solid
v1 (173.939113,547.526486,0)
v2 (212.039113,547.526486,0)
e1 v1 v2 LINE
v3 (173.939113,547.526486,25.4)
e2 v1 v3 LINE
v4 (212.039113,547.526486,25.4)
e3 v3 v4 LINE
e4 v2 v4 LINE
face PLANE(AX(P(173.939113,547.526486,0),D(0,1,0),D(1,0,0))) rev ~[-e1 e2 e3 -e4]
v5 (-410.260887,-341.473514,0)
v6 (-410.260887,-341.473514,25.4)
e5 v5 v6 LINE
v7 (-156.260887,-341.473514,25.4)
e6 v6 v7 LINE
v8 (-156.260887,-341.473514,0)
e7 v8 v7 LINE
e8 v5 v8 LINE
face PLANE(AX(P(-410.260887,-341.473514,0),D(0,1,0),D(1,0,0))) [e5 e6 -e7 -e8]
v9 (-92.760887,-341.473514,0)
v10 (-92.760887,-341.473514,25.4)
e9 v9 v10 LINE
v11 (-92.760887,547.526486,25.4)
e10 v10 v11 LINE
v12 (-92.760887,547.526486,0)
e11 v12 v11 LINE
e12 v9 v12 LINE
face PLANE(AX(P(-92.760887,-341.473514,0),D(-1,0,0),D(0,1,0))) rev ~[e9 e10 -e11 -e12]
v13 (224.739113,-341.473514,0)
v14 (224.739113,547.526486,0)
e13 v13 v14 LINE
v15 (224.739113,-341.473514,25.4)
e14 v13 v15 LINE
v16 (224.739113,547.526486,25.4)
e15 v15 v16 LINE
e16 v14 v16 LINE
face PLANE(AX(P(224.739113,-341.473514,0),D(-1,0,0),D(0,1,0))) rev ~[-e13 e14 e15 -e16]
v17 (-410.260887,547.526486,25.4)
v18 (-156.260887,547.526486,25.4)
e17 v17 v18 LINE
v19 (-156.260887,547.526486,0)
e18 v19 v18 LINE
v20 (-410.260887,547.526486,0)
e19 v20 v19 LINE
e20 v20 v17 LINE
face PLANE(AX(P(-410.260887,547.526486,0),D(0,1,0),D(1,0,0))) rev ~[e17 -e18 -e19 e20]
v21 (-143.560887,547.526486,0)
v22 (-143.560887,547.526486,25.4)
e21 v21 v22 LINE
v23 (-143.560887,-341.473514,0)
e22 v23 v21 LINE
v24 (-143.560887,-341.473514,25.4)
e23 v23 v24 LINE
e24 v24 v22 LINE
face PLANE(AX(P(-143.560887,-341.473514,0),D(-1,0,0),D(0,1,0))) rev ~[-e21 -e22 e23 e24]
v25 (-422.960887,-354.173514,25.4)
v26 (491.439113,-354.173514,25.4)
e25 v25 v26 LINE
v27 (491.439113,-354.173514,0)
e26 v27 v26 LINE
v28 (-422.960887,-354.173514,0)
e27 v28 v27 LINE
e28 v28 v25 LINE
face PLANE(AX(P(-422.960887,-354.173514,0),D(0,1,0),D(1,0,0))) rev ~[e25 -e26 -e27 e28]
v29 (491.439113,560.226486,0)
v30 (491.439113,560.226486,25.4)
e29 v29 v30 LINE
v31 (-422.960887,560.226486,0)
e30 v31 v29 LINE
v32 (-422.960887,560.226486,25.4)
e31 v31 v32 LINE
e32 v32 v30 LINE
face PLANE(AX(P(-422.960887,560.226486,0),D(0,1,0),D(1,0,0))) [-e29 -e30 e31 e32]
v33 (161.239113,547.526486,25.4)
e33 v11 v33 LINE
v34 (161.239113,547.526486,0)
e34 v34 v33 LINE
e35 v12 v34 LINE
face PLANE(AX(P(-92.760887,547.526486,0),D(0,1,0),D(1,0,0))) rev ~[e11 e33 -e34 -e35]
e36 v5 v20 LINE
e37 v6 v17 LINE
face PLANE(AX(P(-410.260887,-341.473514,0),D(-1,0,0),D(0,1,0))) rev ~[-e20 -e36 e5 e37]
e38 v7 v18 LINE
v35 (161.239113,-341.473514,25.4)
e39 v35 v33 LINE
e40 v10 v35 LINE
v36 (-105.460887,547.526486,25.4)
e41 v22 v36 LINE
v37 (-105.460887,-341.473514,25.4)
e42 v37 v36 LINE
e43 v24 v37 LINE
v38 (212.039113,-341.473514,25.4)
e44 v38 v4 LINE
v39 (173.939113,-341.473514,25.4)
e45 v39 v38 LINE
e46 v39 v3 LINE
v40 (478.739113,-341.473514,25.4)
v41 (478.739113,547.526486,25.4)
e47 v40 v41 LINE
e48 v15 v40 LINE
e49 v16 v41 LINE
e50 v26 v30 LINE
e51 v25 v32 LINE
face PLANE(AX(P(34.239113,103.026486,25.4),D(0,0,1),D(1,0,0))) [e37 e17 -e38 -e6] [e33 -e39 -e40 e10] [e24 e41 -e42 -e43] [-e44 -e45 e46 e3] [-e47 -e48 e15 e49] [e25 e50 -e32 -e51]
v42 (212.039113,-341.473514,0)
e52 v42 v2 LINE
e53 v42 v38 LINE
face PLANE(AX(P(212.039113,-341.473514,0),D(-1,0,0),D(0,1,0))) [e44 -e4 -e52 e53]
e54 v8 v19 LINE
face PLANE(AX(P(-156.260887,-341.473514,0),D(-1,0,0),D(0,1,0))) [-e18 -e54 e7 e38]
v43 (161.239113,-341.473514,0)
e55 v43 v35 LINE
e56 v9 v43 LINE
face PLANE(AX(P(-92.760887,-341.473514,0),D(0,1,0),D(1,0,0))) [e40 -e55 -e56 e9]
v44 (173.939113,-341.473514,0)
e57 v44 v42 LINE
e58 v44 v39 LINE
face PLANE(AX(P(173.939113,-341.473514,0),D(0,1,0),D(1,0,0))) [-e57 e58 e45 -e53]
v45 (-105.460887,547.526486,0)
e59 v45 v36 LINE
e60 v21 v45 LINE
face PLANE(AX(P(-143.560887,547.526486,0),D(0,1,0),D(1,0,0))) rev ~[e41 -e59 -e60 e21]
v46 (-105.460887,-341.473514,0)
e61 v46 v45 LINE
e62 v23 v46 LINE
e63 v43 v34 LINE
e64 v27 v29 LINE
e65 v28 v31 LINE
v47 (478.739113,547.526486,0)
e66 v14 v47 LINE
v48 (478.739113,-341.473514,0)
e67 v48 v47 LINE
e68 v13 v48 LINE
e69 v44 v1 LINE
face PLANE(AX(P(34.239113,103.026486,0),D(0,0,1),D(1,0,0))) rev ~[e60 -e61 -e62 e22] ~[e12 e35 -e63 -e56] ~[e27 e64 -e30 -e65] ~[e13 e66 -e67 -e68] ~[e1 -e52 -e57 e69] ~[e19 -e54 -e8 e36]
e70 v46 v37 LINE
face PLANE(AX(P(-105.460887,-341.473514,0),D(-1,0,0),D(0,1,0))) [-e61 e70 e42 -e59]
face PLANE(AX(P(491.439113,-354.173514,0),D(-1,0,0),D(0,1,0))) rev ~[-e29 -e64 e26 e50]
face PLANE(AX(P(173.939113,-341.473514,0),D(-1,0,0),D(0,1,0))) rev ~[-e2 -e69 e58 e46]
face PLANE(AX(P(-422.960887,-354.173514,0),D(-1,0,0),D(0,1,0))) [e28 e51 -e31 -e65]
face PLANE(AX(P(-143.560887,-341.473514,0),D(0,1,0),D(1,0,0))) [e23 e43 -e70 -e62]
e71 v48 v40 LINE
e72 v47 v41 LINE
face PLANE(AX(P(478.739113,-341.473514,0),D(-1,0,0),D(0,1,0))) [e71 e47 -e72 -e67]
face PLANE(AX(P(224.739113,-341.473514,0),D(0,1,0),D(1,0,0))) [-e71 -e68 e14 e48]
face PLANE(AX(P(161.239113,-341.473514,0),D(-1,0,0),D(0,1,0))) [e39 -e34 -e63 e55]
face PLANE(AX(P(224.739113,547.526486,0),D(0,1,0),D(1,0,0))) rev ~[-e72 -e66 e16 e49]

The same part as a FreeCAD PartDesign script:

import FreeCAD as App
import Part
import Sketcher

V = App.Vector
Q = App.Units.Quantity

doc = App.newDocument("Part")
body = doc.addObject("PartDesign::Body", "Body")

# Sketch on XY plane
sketch1 = body.newObject("Sketcher::SketchObject", "Sketch")
sketch1.AttachmentSupport = (doc.getObject("XY_Plane"), [""])
sketch1.MapMode = "FlatFace"
sketch1.addGeometry([
    Part.LineSegment(V(-422.960887, 560.226486, 0), V(-422.960887, -354.173514, 0)),  # 0
    Part.LineSegment(V(-422.960887, -354.173514, 0), V(491.439113, -354.173514, 0)),  # 1
    Part.LineSegment(V(491.439113, -354.173514, 0), V(491.439113, 560.226486, 0)),  # 2
    Part.LineSegment(V(491.439113, 560.226486, 0), V(-422.960887, 560.226486, 0)),  # 3
    Part.LineSegment(V(-156.260887, -341.473514, 0), V(-410.260887, -341.473514, 0)),  # 4
    Part.LineSegment(V(-410.260887, -341.473514, 0), V(-410.260887, 547.526486, 0)),  # 5
    Part.LineSegment(V(-410.260887, 547.526486, 0), V(-156.260887, 547.526486, 0)),  # 6
    Part.LineSegment(V(-156.260887, 547.526486, 0), V(-156.260887, -341.473514, 0)),  # 7
    Part.LineSegment(V(-105.460887, -341.473514, 0), V(-143.560887, -341.473514, 0)),  # 8
    Part.LineSegment(V(-143.560887, -341.473514, 0), V(-143.560887, 547.526486, 0)),  # 9
    Part.LineSegment(V(-143.560887, 547.526486, 0), V(-105.460887, 547.526486, 0)),  # 10
    Part.LineSegment(V(-105.460887, 547.526486, 0), V(-105.460887, -341.473514, 0)),  # 11
    Part.LineSegment(V(161.239113, -341.473514, 0), V(-92.760887, -341.473514, 0)),  # 12
    Part.LineSegment(V(-92.760887, -341.473514, 0), V(-92.760887, 547.526486, 0)),  # 13
    Part.LineSegment(V(-92.760887, 547.526486, 0), V(161.239113, 547.526486, 0)),  # 14
    Part.LineSegment(V(161.239113, 547.526486, 0), V(161.239113, -341.473514, 0)),  # 15
    Part.LineSegment(V(212.039113, -341.473514, 0), V(173.939113, -341.473514, 0)),  # 16
    Part.LineSegment(V(173.939113, -341.473514, 0), V(173.939113, 547.526486, 0)),  # 17
    Part.LineSegment(V(173.939113, 547.526486, 0), V(212.039113, 547.526486, 0)),  # 18
    Part.LineSegment(V(212.039113, 547.526486, 0), V(212.039113, -341.473514, 0)),  # 19
    Part.LineSegment(V(478.739113, -341.473514, 0), V(224.739113, -341.473514, 0)),  # 20
    Part.LineSegment(V(224.739113, -341.473514, 0), V(224.739113, 547.526486, 0)),  # 21
    Part.LineSegment(V(224.739113, 547.526486, 0), V(478.739113, 547.526486, 0)),  # 22
    Part.LineSegment(V(478.739113, 547.526486, 0), V(478.739113, -341.473514, 0)),  # 23
], False)
sketch1.addConstraint([
    Sketcher.Constraint("Coincident", 0, 2, 1, 1),
    Sketcher.Constraint("Coincident", 1, 2, 2, 1),
    Sketcher.Constraint("Coincident", 2, 2, 3, 1),
    Sketcher.Constraint("Coincident", 3, 2, 0, 1),
    Sketcher.Constraint("Coincident", 4, 2, 5, 1),
    Sketcher.Constraint("Coincident", 5, 2, 6, 1),
    Sketcher.Constraint("Coincident", 6, 2, 7, 1),
    Sketcher.Constraint("Coincident", 7, 2, 4, 1),
    Sketcher.Constraint("Coincident", 8, 2, 9, 1),
    Sketcher.Constraint("Coincident", 9, 2, 10, 1),
    Sketcher.Constraint("Coincident", 10, 2, 11, 1),
    Sketcher.Constraint("Coincident", 11, 2, 8, 1),
    Sketcher.Constraint("Coincident", 12, 2, 13, 1),
    Sketcher.Constraint("Coincident", 13, 2, 14, 1),
    Sketcher.Constraint("Coincident", 14, 2, 15, 1),
    Sketcher.Constraint("Coincident", 15, 2, 12, 1),
    Sketcher.Constraint("Coincident", 16, 2, 17, 1),
    Sketcher.Constraint("Coincident", 17, 2, 18, 1),
    Sketcher.Constraint("Coincident", 18, 2, 19, 1),
    Sketcher.Constraint("Coincident", 19, 2, 16, 1),
    Sketcher.Constraint("Coincident", 20, 2, 21, 1),
    Sketcher.Constraint("Coincident", 21, 2, 22, 1),
    Sketcher.Constraint("Coincident", 22, 2, 23, 1),
    Sketcher.Constraint("Coincident", 23, 2, 20, 1),
    Sketcher.Constraint("Vertical", 0),
    Sketcher.Constraint("Horizontal", 1),
    Sketcher.Constraint("Vertical", 2),
    Sketcher.Constraint("Horizontal", 3),
    Sketcher.Constraint("Horizontal", 4),
    Sketcher.Constraint("Vertical", 5),
    Sketcher.Constraint("Horizontal", 6),
    Sketcher.Constraint("Vertical", 7),
    Sketcher.Constraint("Horizontal", 8),
    Sketcher.Constraint("Vertical", 9),
    Sketcher.Constraint("Horizontal", 10),
    Sketcher.Constraint("Vertical", 11),
    Sketcher.Constraint("Horizontal", 12),
    Sketcher.Constraint("Vertical", 13),
    Sketcher.Constraint("Horizontal", 14),
    Sketcher.Constraint("Vertical", 15),
    Sketcher.Constraint("Horizontal", 16),
    Sketcher.Constraint("Vertical", 17),
    Sketcher.Constraint("Horizontal", 18),
    Sketcher.Constraint("Vertical", 19),
    Sketcher.Constraint("Horizontal", 20),
    Sketcher.Constraint("Vertical", 21),
    Sketcher.Constraint("Horizontal", 22),
    Sketcher.Constraint("Vertical", 23),
    Sketcher.Constraint("Horizontal", 7, 2, 8, 2),
    Sketcher.Constraint("Horizontal", 6, 2, 9, 2),
    Sketcher.Constraint("Horizontal", 11, 2, 12, 2),
    Sketcher.Constraint("Horizontal", 10, 2, 13, 2),
    Sketcher.Constraint("Horizontal", 15, 2, 16, 2),
    Sketcher.Constraint("Horizontal", 14, 2, 17, 2),
    Sketcher.Constraint("Horizontal", 19, 2, 20, 2),
    Sketcher.Constraint("Horizontal", 18, 2, 21, 2),
    Sketcher.Constraint("Equal", 6, 12),
    Sketcher.Constraint("Equal", 10, 16),
    Sketcher.Constraint("Equal", 14, 20),
    Sketcher.Constraint("Equal", 3, 0),
    Sketcher.Constraint("DistanceX", 1, 1, 1, 2, Q("36 in")),
    Sketcher.Constraint("DistanceX", 4, 2, 4, 1, Q("10 in")),
    Sketcher.Constraint("DistanceY", 5, 1, 5, 2, Q("35 in")),
    Sketcher.Constraint("DistanceX", 8, 2, 8, 1, Q("1.5 in")),
    Sketcher.Constraint("DistanceX", 0, 2, 8, 2, Q("11 in")),
    Sketcher.Constraint("DistanceX", 6, 2, 10, 2, Q("2 in")),
    Sketcher.Constraint("DistanceX", 8, 2, 12, 2, Q("2 in")),
    Sketcher.Constraint("DistanceX", 11, 2, 16, 2, Q("11 in")),
    Sketcher.Constraint("DistanceX", 16, 2, 20, 2, Q("2 in")),
    Sketcher.Constraint("DistanceY", 0, 2, 4, 2, Q("0.5 in")),
    Sketcher.Constraint("DistanceX", 0, 2, -1, 1, 422.960887),
    Sketcher.Constraint("DistanceY", 0, 2, -1, 1, 354.173514),
])
pad1 = body.newObject("PartDesign::Pad", "Pad")
pad1.Profile = sketch1
pad1.Length = Q("1 in")

doc.recompute()
